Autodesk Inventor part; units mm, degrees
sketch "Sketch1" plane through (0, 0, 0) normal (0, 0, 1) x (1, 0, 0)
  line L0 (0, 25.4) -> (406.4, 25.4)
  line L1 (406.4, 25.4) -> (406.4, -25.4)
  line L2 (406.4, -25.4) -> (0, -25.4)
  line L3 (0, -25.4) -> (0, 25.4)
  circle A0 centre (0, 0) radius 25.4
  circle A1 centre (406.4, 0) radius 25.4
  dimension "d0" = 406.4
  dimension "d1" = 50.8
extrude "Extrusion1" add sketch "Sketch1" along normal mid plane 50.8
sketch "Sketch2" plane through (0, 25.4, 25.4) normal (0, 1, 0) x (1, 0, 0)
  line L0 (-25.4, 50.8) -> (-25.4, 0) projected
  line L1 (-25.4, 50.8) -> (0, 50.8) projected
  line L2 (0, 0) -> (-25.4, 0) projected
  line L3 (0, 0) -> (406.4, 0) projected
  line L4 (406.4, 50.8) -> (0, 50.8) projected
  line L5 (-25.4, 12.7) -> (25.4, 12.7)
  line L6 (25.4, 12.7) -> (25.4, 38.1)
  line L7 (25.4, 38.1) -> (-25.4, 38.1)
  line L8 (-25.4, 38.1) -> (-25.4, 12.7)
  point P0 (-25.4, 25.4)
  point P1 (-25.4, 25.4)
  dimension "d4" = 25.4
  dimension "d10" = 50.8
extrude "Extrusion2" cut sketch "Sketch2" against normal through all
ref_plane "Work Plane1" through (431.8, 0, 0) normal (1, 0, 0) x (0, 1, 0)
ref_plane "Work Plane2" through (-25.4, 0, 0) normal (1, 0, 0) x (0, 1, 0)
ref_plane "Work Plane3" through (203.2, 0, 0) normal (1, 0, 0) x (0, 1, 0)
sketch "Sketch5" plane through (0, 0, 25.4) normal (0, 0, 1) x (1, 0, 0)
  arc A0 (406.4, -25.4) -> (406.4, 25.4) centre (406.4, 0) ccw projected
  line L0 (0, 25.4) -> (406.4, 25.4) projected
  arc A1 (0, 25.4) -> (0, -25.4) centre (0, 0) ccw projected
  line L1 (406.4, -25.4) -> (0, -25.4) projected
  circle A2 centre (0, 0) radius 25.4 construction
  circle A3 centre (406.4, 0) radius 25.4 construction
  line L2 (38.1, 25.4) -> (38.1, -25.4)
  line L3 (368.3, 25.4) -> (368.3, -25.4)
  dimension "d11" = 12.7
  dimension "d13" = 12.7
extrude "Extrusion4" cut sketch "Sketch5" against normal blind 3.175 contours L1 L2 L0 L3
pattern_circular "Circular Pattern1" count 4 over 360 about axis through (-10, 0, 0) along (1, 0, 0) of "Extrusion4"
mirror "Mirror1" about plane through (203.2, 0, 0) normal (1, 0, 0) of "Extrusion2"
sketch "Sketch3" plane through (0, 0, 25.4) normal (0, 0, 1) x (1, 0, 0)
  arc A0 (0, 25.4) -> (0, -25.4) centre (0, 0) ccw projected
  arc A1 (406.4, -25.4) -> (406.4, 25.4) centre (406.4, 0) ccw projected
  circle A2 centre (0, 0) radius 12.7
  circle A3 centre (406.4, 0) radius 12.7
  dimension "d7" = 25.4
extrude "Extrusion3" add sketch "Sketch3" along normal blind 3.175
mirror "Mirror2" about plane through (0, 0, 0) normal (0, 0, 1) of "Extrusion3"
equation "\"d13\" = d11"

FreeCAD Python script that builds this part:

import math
import FreeCAD as App
import Part
import Sketcher

V = App.Vector
Q = App.Units.Quantity

doc = App.newDocument("Part")
body = doc.addObject("PartDesign::Body", "Body")

sketch1 = body.newObject("Sketcher::SketchObject", "Sketch")
sketch1.AttachmentSupport = (doc.getObject("XY_Plane"), [""])
sketch1.MapMode = "FlatFace"
sketch1.addGeometry([
    Part.LineSegment(V(406, 25, 0), V(0, 25, 0)),
    Part.ArcOfCircle(Part.Circle(V(0, 0, 0), V(0, 0, 1), 25), math.radians(90), math.radians(270)),
    Part.LineSegment(V(0, -25, 0), V(406, -25, 0)),
    Part.ArcOfCircle(Part.Circle(V(406, 0, 0), V(0, 0, 1), 25), math.radians(-90), math.radians(90)),
], False)
sketch1.addConstraint([
    Sketcher.Constraint("Tangent", 0, 2, 1, 1),
    Sketcher.Constraint("Tangent", 1, 2, 2, 1),
    Sketcher.Constraint("Tangent", 2, 2, 3, 1),
    Sketcher.Constraint("Tangent", 3, 2, 0, 1),
    Sketcher.Constraint("Horizontal", 0),
    Sketcher.Constraint("Horizontal", 2),
    Sketcher.Constraint("Coincident", 1, 3, -1, 1),
    Sketcher.Constraint("Radius", 1, Q("1 in")),
    Sketcher.Constraint("DistanceX", 0, 2, 0, 1, Q("16 in")),
])
pad1 = body.newObject("PartDesign::Pad", "Pad")
pad1.Profile = sketch1
pad1.Length = Q("2 in")
pad1.Midplane = True

sketch2 = body.newObject("Sketcher::SketchObject", "Sketch001")
sketch2.AttachmentSupport = (doc.getObject("XZ_Plane"), [""])
sketch2.MapMode = "FlatFace"
sketch2.AttachmentOffset = App.Placement(V(0, 0, -1 * 25.4), App.Rotation())
sketch2.addGeometry([
    Part.LineSegment(V(25, -13, 0), V(-25, -13, 0)),
    Part.LineSegment(V(-25, -13, 0), V(-25, 13, 0)),
    Part.LineSegment(V(-25, 13, 0), V(25, 13, 0)),
    Part.LineSegment(V(25, 13, 0), V(25, -13, 0)),
], False)
sketch2.addConstraint([
    Sketcher.Constraint("Coincident", 0, 2, 1, 1),
    Sketcher.Constraint("Coincident", 1, 2, 2, 1),
    Sketcher.Constraint("Coincident", 2, 2, 3, 1),
    Sketcher.Constraint("Coincident", 3, 2, 0, 1),
    Sketcher.Constraint("Horizontal", 0),
    Sketcher.Constraint("Vertical", 1),
    Sketcher.Constraint("Horizontal", 2),
    Sketcher.Constraint("Vertical", 3),
    Sketcher.Constraint("Symmetric", 0, 2, 2, 2, -1, 1),
    Sketcher.Constraint("DistanceX", 0, 2, 0, 1, Q("2 in")),
    Sketcher.Constraint("DistanceY", 1, 1, 1, 2, Q("1 in")),
])
pocket1 = body.newObject("PartDesign::Pocket", "Pocket")
pocket1.Profile = sketch2
pocket1.Type = "ThroughAll"
pocket1.Reversed = True

sketch3 = body.newObject("Sketcher::SketchObject", "Sketch002")
sketch3.AttachmentSupport = (doc.getObject("XY_Plane"), [""])
sketch3.MapMode = "FlatFace"
sketch3.AttachmentOffset = App.Placement(V(0, 0, 1 * 25.4), App.Rotation())
sketch3.addGeometry([
    Part.LineSegment(V(38, -25, 0), V(368, -25, 0)),
    Part.LineSegment(V(368, -25, 0), V(368, 25, 0)),
    Part.LineSegment(V(368, 25, 0), V(38, 25, 0)),
    Part.LineSegment(V(38, 25, 0), V(38, -25, 0)),
], False)
sketch3.addConstraint([
    Sketcher.Constraint("Coincident", 0, 2, 1, 1),
    Sketcher.Constraint("Coincident", 1, 2, 2, 1),
    Sketcher.Constraint("Coincident", 2, 2, 3, 1),
    Sketcher.Constraint("Coincident", 3, 2, 0, 1),
    Sketcher.Constraint("Horizontal", 0),
    Sketcher.Constraint("Vertical", 1),
    Sketcher.Constraint("Horizontal", 2),
    Sketcher.Constraint("Vertical", 3),
    Sketcher.Constraint("DistanceX", 0, 1, 0, 2, Q("13 in")),
    Sketcher.Constraint("DistanceY", 1, 1, 1, 2, Q("2 in")),
    Sketcher.Constraint("DistanceY", 0, 2, -1, 1, Q("1 in")),
    Sketcher.Constraint("DistanceX", -1, 1, 0, 2, Q("14.5 in")),
])
pocket2 = body.newObject("PartDesign::Pocket", "Pocket001")
pocket2.Profile = sketch3
pocket2.Length = Q("0.125 in")
doc.recompute()

polarpattern = body.newObject("PartDesign::PolarPattern", "PolarPattern")
polarpattern.Originals = [pocket2]
polarpattern.Axis = (doc.getObject("X_Axis"), [""])
polarpattern.Angle = 360
polarpattern.Occurrences = 4
body.Tip = polarpattern
doc.recompute()

datumplane = body.newObject("PartDesign::Plane", "DatumPlane")
datumplane.AttachmentSupport = (doc.getObject("YZ_Plane"), [""])
datumplane.MapMode = "FlatFace"
datumplane.AttachmentOffset = App.Placement(V(0, 0, 8 * 25.4), App.Rotation())
mirrored = body.newObject("PartDesign::Mirrored", "Mirrored")
mirrored.Originals = [pocket1]
mirrored.MirrorPlane = (datumplane, [""])
body.Tip = mirrored

sketch4 = body.newObject("Sketcher::SketchObject", "Sketch003")
sketch4.AttachmentSupport = (doc.getObject("XY_Plane"), [""])
sketch4.MapMode = "FlatFace"
sketch4.AttachmentOffset = App.Placement(V(0, 0, 1 * 25.4), App.Rotation())
sketch4.addGeometry([
    Part.Circle(V(0, 0, 0), V(0, 0, 1), 13),
    Part.Circle(V(406, 0, 0), V(0, 0, 1), 13),
], False)
sketch4.addConstraint([
    Sketcher.Constraint("Coincident", 0, 3, -1, 1),
    Sketcher.Constraint("Equal", 0, 1),
    Sketcher.Constraint("PointOnObject", 1, 3, -1),
    Sketcher.Constraint("Diameter", 0, Q("1 in")),
    Sketcher.Constraint("DistanceX", -1, 1, 1, 3, Q("16 in")),
])
pad2 = body.newObject("PartDesign::Pad", "Pad001")
pad2.Profile = sketch4
pad2.Length = Q("0.125 in")
doc.recompute()

mirrored2 = body.newObject("PartDesign::Mirrored", "Mirrored001")
mirrored2.Originals = [pad2]
mirrored2.MirrorPlane = (doc.getObject("XY_Plane"), [""])
body.Tip = mirrored2

doc.recompute()
